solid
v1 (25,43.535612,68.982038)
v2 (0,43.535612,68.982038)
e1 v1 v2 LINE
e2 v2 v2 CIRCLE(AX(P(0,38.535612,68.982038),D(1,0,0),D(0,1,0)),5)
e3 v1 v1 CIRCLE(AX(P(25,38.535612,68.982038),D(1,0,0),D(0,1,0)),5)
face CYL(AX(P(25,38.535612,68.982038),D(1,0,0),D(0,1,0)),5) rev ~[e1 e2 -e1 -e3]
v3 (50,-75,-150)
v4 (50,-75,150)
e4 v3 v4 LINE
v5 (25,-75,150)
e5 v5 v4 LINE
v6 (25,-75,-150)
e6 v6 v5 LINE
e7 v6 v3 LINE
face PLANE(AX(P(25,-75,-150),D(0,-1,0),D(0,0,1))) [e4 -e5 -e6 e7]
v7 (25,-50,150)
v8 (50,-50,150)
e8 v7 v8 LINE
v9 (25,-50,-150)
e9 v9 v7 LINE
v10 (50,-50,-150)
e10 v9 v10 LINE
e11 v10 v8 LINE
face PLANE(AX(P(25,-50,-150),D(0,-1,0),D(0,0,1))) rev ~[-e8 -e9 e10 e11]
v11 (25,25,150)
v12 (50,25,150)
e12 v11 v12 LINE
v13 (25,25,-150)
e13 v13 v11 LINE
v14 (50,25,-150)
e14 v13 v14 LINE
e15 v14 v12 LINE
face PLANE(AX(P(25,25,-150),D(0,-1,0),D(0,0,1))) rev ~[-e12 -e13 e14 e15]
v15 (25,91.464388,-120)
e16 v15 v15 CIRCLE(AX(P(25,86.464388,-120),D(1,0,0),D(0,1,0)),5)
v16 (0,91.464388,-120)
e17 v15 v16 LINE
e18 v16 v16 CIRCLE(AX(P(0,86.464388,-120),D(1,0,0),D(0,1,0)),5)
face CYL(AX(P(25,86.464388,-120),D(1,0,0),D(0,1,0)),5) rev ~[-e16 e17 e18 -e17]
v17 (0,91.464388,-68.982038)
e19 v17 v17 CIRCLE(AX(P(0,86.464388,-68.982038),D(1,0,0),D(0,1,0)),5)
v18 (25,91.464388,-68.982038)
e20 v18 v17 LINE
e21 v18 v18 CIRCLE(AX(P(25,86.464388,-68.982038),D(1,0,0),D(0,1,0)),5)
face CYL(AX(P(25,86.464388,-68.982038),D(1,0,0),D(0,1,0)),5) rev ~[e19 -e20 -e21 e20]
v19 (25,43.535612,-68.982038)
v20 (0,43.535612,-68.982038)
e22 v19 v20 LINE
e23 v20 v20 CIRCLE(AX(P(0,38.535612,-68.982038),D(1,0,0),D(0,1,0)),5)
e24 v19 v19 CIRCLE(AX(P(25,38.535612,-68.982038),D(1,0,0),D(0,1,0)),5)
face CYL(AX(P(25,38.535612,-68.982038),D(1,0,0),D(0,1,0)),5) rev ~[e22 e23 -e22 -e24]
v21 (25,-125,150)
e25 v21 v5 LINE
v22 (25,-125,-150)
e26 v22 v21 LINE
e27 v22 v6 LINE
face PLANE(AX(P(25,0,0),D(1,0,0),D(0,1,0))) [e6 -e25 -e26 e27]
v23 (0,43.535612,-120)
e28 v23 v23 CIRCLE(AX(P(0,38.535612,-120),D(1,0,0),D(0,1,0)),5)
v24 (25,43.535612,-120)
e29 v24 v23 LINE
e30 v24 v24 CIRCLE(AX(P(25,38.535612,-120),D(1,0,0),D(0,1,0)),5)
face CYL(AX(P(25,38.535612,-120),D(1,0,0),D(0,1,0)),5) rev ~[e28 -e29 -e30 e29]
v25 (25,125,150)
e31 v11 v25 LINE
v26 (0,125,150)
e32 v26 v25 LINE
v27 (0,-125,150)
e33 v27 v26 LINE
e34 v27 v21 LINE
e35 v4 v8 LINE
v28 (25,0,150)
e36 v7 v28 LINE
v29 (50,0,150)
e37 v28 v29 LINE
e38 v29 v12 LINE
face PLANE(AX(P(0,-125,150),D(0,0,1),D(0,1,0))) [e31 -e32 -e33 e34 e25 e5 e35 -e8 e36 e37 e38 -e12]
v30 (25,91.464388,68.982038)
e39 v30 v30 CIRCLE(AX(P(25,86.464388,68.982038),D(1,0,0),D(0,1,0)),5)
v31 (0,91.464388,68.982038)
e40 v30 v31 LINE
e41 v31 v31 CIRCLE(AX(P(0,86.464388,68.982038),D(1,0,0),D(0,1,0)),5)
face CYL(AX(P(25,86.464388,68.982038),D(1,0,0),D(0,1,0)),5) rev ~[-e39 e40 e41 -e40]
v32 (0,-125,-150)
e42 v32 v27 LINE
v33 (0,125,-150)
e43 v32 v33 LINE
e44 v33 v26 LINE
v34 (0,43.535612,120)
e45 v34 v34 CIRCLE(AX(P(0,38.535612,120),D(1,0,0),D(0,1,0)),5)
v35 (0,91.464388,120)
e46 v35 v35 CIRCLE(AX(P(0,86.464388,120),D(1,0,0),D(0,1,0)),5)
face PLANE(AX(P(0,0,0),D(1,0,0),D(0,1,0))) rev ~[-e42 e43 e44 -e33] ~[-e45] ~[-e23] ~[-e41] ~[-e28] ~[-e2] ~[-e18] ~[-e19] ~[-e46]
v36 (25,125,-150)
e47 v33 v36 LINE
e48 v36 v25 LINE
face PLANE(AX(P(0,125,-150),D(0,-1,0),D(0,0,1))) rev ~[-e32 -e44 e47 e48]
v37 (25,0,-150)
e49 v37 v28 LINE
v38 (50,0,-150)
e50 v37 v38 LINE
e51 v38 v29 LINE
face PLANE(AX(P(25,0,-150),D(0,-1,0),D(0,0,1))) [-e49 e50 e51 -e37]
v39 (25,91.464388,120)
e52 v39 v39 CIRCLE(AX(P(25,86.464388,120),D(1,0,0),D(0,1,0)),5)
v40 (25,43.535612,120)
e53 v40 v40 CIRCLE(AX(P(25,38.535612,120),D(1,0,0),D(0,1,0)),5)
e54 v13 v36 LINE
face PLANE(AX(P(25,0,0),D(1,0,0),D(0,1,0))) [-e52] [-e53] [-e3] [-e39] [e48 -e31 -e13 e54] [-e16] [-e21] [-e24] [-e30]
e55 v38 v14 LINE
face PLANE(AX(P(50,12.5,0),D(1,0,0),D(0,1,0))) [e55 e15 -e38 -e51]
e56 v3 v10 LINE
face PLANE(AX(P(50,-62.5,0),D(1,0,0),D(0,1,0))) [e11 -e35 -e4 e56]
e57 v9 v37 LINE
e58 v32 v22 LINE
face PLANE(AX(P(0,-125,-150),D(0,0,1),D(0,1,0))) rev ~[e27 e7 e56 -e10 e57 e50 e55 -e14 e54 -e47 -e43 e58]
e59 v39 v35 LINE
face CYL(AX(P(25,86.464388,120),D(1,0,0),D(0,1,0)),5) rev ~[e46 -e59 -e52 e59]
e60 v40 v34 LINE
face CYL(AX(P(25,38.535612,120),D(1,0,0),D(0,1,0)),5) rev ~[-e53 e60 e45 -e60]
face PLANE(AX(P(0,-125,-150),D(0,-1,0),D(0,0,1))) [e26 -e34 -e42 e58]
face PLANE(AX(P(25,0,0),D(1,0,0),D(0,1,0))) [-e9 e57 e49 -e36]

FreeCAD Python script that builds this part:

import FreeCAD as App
import Part
import Sketcher
from FreeCAD import Vector

doc = App.newDocument("Part")
params = doc.addObject("Spreadsheet::Sheet", "Params")
for row, (alias, value) in enumerate([
    ("sketch1_width", "250 mm"),
    ("sketch1_height", "300 mm"),
    ("pad1_length", "25 mm"),
    ("sketch2_width", "25 mm"),
    ("sketch2_height", "300 mm"),
    ("pad2_length", "25 mm"),
    ("sketch3_diameter", "10 mm"),
], start=1):
    params.set(f"A{row}", alias)
    params.set(f"B{row}", "=" + value)
    params.setAlias(f"B{row}", alias)

body = doc.addObject("PartDesign::Body", "Body")

# Sketch on YZ plane
sketch1 = body.newObject("Sketcher::SketchObject", "Sketch")
sketch1.AttachmentSupport = (doc.getObject("YZ_Plane"), [""])
sketch1.MapMode = "FlatFace"
sketch1.addGeometry(Part.LineSegment(Vector(-125, 150, 0), Vector(-125, -150, 0)), False)
sketch1.addGeometry(Part.LineSegment(Vector(-125, -150, 0), Vector(125, -150, 0)), False)
sketch1.addGeometry(Part.LineSegment(Vector(125, -150, 0), Vector(125, 150, 0)), False)
sketch1.addGeometry(Part.LineSegment(Vector(125, 150, 0), Vector(-125, 150, 0)), False)
sketch1.addConstraint(Sketcher.Constraint("Coincident", 0, 2, 1, 1))
sketch1.addConstraint(Sketcher.Constraint("Coincident", 1, 2, 2, 1))
sketch1.addConstraint(Sketcher.Constraint("Coincident", 2, 2, 3, 1))
sketch1.addConstraint(Sketcher.Constraint("Coincident", 3, 2, 0, 1))
sketch1.addConstraint(Sketcher.Constraint("Vertical", 0))
sketch1.addConstraint(Sketcher.Constraint("Horizontal", 1))
sketch1.addConstraint(Sketcher.Constraint("Vertical", 2))
sketch1.addConstraint(Sketcher.Constraint("Horizontal", 3))
sketch1.addConstraint(Sketcher.Constraint("Symmetric", 0, 2, 2, 2, -1, 1))
sketch1.addConstraint(Sketcher.Constraint("DistanceX", 1, 1, 1, 2, 250.0))
sketch1.addConstraint(Sketcher.Constraint("DistanceY", 0, 2, 0, 1, 300.0))
sketch1.setExpression("Constraints[9]", "Params.sketch1_width")
sketch1.setExpression("Constraints[10]", "Params.sketch1_height")
pad1 = body.newObject("PartDesign::Pad", "Pad")
pad1.Profile = sketch1
pad1.setExpression("Length", "Params.pad1_length")

# Sketch on YZ plane
sketch2 = body.newObject("Sketcher::SketchObject", "Sketch001")
sketch2.AttachmentSupport = (doc.getObject("YZ_Plane"), [""])
sketch2.MapMode = "FlatFace"
sketch2.AttachmentOffset = App.Placement(Vector(0, 0, 25), App.Rotation())
sketch2.addGeometry(Part.LineSegment(Vector(-75, 150, 0), Vector(-75, -150, 0)), False)
sketch2.addGeometry(Part.LineSegment(Vector(-75, -150, 0), Vector(-50, -150, 0)), False)
sketch2.addGeometry(Part.LineSegment(Vector(-50, -150, 0), Vector(-50, 150, 0)), False)
sketch2.addGeometry(Part.LineSegment(Vector(-50, 150, 0), Vector(-75, 150, 0)), False)
sketch2.addGeometry(Part.LineSegment(Vector(0, 150, 0), Vector(0, -150, 0)), False)
sketch2.addGeometry(Part.LineSegment(Vector(0, -150, 0), Vector(25, -150, 0)), False)
sketch2.addGeometry(Part.LineSegment(Vector(25, -150, 0), Vector(25, 150, 0)), False)
sketch2.addGeometry(Part.LineSegment(Vector(25, 150, 0), Vector(0, 150, 0)), False)
sketch2.addConstraint(Sketcher.Constraint("Coincident", 0, 2, 1, 1))
sketch2.addConstraint(Sketcher.Constraint("Coincident", 1, 2, 2, 1))
sketch2.addConstraint(Sketcher.Constraint("Coincident", 2, 2, 3, 1))
sketch2.addConstraint(Sketcher.Constraint("Coincident", 3, 2, 0, 1))
sketch2.addConstraint(Sketcher.Constraint("Coincident", 4, 2, 5, 1))
sketch2.addConstraint(Sketcher.Constraint("Coincident", 5, 2, 6, 1))
sketch2.addConstraint(Sketcher.Constraint("Coincident", 6, 2, 7, 1))
sketch2.addConstraint(Sketcher.Constraint("Coincident", 7, 2, 4, 1))
sketch2.addConstraint(Sketcher.Constraint("Vertical", 0))
sketch2.addConstraint(Sketcher.Constraint("Horizontal", 1))
sketch2.addConstraint(Sketcher.Constraint("Vertical", 2))
sketch2.addConstraint(Sketcher.Constraint("Horizontal", 3))
sketch2.addConstraint(Sketcher.Constraint("Vertical", 4))
sketch2.addConstraint(Sketcher.Constraint("Horizontal", 5))
sketch2.addConstraint(Sketcher.Constraint("Vertical", 6))
sketch2.addConstraint(Sketcher.Constraint("Horizontal", 7))
sketch2.addConstraint(Sketcher.Constraint("Symmetric", 4, 2, 7, 2, -1, 1))
sketch2.addConstraint(Sketcher.Constraint("Horizontal", 1, 2, 4, 2))
sketch2.addConstraint(Sketcher.Constraint("Horizontal", 3, 2, 6, 2))
sketch2.addConstraint(Sketcher.Constraint("Equal", 3, 5))
sketch2.addConstraint(Sketcher.Constraint("DistanceX", 1, 1, 1, 2, 25.0))
sketch2.addConstraint(Sketcher.Constraint("DistanceY", 0, 2, 0, 1, 300.0))
sketch2.addConstraint(Sketcher.Constraint("DistanceX", 0, 2, -1, 1, 75.0))
sketch2.setExpression("Constraints[20]", "Params.sketch2_width")
sketch2.setExpression("Constraints[21]", "Params.sketch2_height")
pad2 = body.newObject("PartDesign::Pad", "Pad001")
pad2.Profile = sketch2
pad2.setExpression("Length", "Params.pad2_length")

# Sketch on YZ plane
sketch3 = body.newObject("Sketcher::SketchObject", "Sketch002")
sketch3.AttachmentSupport = (doc.getObject("YZ_Plane"), [""])
sketch3.MapMode = "FlatFace"
sketch3.AttachmentOffset = App.Placement(Vector(0, 0, 25), App.Rotation())
sketch3.addGeometry(Part.Circle(Vector(86.464388, 120, 0), Vector(0, 0, 1), 5), False)
sketch3.addGeometry(Part.Circle(Vector(38.535612, 68.982038, 0), Vector(0, 0, 1), 5), False)
sketch3.addGeometry(Part.Circle(Vector(38.535612, 120, 0), Vector(0, 0, 1), 5), False)
sketch3.addGeometry(Part.Circle(Vector(86.464388, 68.982038, 0), Vector(0, 0, 1), 5), False)
sketch3.addGeometry(Part.Circle(Vector(86.464388, -68.982038, 0), Vector(0, 0, 1), 5), False)
sketch3.addGeometry(Part.Circle(Vector(86.464388, -120, 0), Vector(0, 0, 1), 5), False)
sketch3.addGeometry(Part.Circle(Vector(38.535612, -120, 0), Vector(0, 0, 1), 5), False)
sketch3.addGeometry(Part.Circle(Vector(38.535612, -68.982038, 0), Vector(0, 0, 1), 5), False)
sketch3.addConstraint(Sketcher.Constraint("Equal", 0, 1))
sketch3.addConstraint(Sketcher.Constraint("Equal", 1, 2))
sketch3.addConstraint(Sketcher.Constraint("Equal", 2, 3))
sketch3.addConstraint(Sketcher.Constraint("Equal", 3, 4))
sketch3.addConstraint(Sketcher.Constraint("Equal", 4, 5))
sketch3.addConstraint(Sketcher.Constraint("Equal", 5, 6))
sketch3.addConstraint(Sketcher.Constraint("Equal", 6, 7))
sketch3.addConstraint(Sketcher.Constraint("Symmetric", 3, 3, 4, 3, -1))
sketch3.addConstraint(Sketcher.Constraint("Symmetric", 0, 3, 5, 3, -1))
sketch3.addConstraint(Sketcher.Constraint("Symmetric", 2, 3, 6, 3, -1))
sketch3.addConstraint(Sketcher.Constraint("Symmetric", 1, 3, 7, 3, -1))
sketch3.addConstraint(Sketcher.Constraint("Horizontal", 0, 3, 2, 3))
sketch3.addConstraint(Sketcher.Constraint("Horizontal", 1, 3, 3, 3))
sketch3.addConstraint(Sketcher.Constraint("Vertical", 1, 3, 2, 3))
sketch3.addConstraint(Sketcher.Constraint("Vertical", 0, 3, 3, 3))
sketch3.addConstraint(Sketcher.Constraint("Diameter", 0, 10.0))
sketch3.addConstraint(Sketcher.Constraint("DistanceY", -1, 1, 0, 3, 120.0))
sketch3.addConstraint(Sketcher.Constraint("DistanceX", -1, 1, 0, 3, 86.464388))
sketch3.addConstraint(Sketcher.Constraint("DistanceY", -1, 1, 1, 3, 68.982038))
sketch3.addConstraint(Sketcher.Constraint("DistanceX", -1, 1, 1, 3, 38.535612))
sketch3.setExpression("Constraints[15]", "Params.sketch3_diameter")
pocket1 = body.newObject("PartDesign::Pocket", "Pocket")
pocket1.Profile = sketch3
pocket1.Type = "ThroughAll"

doc.recompute()
